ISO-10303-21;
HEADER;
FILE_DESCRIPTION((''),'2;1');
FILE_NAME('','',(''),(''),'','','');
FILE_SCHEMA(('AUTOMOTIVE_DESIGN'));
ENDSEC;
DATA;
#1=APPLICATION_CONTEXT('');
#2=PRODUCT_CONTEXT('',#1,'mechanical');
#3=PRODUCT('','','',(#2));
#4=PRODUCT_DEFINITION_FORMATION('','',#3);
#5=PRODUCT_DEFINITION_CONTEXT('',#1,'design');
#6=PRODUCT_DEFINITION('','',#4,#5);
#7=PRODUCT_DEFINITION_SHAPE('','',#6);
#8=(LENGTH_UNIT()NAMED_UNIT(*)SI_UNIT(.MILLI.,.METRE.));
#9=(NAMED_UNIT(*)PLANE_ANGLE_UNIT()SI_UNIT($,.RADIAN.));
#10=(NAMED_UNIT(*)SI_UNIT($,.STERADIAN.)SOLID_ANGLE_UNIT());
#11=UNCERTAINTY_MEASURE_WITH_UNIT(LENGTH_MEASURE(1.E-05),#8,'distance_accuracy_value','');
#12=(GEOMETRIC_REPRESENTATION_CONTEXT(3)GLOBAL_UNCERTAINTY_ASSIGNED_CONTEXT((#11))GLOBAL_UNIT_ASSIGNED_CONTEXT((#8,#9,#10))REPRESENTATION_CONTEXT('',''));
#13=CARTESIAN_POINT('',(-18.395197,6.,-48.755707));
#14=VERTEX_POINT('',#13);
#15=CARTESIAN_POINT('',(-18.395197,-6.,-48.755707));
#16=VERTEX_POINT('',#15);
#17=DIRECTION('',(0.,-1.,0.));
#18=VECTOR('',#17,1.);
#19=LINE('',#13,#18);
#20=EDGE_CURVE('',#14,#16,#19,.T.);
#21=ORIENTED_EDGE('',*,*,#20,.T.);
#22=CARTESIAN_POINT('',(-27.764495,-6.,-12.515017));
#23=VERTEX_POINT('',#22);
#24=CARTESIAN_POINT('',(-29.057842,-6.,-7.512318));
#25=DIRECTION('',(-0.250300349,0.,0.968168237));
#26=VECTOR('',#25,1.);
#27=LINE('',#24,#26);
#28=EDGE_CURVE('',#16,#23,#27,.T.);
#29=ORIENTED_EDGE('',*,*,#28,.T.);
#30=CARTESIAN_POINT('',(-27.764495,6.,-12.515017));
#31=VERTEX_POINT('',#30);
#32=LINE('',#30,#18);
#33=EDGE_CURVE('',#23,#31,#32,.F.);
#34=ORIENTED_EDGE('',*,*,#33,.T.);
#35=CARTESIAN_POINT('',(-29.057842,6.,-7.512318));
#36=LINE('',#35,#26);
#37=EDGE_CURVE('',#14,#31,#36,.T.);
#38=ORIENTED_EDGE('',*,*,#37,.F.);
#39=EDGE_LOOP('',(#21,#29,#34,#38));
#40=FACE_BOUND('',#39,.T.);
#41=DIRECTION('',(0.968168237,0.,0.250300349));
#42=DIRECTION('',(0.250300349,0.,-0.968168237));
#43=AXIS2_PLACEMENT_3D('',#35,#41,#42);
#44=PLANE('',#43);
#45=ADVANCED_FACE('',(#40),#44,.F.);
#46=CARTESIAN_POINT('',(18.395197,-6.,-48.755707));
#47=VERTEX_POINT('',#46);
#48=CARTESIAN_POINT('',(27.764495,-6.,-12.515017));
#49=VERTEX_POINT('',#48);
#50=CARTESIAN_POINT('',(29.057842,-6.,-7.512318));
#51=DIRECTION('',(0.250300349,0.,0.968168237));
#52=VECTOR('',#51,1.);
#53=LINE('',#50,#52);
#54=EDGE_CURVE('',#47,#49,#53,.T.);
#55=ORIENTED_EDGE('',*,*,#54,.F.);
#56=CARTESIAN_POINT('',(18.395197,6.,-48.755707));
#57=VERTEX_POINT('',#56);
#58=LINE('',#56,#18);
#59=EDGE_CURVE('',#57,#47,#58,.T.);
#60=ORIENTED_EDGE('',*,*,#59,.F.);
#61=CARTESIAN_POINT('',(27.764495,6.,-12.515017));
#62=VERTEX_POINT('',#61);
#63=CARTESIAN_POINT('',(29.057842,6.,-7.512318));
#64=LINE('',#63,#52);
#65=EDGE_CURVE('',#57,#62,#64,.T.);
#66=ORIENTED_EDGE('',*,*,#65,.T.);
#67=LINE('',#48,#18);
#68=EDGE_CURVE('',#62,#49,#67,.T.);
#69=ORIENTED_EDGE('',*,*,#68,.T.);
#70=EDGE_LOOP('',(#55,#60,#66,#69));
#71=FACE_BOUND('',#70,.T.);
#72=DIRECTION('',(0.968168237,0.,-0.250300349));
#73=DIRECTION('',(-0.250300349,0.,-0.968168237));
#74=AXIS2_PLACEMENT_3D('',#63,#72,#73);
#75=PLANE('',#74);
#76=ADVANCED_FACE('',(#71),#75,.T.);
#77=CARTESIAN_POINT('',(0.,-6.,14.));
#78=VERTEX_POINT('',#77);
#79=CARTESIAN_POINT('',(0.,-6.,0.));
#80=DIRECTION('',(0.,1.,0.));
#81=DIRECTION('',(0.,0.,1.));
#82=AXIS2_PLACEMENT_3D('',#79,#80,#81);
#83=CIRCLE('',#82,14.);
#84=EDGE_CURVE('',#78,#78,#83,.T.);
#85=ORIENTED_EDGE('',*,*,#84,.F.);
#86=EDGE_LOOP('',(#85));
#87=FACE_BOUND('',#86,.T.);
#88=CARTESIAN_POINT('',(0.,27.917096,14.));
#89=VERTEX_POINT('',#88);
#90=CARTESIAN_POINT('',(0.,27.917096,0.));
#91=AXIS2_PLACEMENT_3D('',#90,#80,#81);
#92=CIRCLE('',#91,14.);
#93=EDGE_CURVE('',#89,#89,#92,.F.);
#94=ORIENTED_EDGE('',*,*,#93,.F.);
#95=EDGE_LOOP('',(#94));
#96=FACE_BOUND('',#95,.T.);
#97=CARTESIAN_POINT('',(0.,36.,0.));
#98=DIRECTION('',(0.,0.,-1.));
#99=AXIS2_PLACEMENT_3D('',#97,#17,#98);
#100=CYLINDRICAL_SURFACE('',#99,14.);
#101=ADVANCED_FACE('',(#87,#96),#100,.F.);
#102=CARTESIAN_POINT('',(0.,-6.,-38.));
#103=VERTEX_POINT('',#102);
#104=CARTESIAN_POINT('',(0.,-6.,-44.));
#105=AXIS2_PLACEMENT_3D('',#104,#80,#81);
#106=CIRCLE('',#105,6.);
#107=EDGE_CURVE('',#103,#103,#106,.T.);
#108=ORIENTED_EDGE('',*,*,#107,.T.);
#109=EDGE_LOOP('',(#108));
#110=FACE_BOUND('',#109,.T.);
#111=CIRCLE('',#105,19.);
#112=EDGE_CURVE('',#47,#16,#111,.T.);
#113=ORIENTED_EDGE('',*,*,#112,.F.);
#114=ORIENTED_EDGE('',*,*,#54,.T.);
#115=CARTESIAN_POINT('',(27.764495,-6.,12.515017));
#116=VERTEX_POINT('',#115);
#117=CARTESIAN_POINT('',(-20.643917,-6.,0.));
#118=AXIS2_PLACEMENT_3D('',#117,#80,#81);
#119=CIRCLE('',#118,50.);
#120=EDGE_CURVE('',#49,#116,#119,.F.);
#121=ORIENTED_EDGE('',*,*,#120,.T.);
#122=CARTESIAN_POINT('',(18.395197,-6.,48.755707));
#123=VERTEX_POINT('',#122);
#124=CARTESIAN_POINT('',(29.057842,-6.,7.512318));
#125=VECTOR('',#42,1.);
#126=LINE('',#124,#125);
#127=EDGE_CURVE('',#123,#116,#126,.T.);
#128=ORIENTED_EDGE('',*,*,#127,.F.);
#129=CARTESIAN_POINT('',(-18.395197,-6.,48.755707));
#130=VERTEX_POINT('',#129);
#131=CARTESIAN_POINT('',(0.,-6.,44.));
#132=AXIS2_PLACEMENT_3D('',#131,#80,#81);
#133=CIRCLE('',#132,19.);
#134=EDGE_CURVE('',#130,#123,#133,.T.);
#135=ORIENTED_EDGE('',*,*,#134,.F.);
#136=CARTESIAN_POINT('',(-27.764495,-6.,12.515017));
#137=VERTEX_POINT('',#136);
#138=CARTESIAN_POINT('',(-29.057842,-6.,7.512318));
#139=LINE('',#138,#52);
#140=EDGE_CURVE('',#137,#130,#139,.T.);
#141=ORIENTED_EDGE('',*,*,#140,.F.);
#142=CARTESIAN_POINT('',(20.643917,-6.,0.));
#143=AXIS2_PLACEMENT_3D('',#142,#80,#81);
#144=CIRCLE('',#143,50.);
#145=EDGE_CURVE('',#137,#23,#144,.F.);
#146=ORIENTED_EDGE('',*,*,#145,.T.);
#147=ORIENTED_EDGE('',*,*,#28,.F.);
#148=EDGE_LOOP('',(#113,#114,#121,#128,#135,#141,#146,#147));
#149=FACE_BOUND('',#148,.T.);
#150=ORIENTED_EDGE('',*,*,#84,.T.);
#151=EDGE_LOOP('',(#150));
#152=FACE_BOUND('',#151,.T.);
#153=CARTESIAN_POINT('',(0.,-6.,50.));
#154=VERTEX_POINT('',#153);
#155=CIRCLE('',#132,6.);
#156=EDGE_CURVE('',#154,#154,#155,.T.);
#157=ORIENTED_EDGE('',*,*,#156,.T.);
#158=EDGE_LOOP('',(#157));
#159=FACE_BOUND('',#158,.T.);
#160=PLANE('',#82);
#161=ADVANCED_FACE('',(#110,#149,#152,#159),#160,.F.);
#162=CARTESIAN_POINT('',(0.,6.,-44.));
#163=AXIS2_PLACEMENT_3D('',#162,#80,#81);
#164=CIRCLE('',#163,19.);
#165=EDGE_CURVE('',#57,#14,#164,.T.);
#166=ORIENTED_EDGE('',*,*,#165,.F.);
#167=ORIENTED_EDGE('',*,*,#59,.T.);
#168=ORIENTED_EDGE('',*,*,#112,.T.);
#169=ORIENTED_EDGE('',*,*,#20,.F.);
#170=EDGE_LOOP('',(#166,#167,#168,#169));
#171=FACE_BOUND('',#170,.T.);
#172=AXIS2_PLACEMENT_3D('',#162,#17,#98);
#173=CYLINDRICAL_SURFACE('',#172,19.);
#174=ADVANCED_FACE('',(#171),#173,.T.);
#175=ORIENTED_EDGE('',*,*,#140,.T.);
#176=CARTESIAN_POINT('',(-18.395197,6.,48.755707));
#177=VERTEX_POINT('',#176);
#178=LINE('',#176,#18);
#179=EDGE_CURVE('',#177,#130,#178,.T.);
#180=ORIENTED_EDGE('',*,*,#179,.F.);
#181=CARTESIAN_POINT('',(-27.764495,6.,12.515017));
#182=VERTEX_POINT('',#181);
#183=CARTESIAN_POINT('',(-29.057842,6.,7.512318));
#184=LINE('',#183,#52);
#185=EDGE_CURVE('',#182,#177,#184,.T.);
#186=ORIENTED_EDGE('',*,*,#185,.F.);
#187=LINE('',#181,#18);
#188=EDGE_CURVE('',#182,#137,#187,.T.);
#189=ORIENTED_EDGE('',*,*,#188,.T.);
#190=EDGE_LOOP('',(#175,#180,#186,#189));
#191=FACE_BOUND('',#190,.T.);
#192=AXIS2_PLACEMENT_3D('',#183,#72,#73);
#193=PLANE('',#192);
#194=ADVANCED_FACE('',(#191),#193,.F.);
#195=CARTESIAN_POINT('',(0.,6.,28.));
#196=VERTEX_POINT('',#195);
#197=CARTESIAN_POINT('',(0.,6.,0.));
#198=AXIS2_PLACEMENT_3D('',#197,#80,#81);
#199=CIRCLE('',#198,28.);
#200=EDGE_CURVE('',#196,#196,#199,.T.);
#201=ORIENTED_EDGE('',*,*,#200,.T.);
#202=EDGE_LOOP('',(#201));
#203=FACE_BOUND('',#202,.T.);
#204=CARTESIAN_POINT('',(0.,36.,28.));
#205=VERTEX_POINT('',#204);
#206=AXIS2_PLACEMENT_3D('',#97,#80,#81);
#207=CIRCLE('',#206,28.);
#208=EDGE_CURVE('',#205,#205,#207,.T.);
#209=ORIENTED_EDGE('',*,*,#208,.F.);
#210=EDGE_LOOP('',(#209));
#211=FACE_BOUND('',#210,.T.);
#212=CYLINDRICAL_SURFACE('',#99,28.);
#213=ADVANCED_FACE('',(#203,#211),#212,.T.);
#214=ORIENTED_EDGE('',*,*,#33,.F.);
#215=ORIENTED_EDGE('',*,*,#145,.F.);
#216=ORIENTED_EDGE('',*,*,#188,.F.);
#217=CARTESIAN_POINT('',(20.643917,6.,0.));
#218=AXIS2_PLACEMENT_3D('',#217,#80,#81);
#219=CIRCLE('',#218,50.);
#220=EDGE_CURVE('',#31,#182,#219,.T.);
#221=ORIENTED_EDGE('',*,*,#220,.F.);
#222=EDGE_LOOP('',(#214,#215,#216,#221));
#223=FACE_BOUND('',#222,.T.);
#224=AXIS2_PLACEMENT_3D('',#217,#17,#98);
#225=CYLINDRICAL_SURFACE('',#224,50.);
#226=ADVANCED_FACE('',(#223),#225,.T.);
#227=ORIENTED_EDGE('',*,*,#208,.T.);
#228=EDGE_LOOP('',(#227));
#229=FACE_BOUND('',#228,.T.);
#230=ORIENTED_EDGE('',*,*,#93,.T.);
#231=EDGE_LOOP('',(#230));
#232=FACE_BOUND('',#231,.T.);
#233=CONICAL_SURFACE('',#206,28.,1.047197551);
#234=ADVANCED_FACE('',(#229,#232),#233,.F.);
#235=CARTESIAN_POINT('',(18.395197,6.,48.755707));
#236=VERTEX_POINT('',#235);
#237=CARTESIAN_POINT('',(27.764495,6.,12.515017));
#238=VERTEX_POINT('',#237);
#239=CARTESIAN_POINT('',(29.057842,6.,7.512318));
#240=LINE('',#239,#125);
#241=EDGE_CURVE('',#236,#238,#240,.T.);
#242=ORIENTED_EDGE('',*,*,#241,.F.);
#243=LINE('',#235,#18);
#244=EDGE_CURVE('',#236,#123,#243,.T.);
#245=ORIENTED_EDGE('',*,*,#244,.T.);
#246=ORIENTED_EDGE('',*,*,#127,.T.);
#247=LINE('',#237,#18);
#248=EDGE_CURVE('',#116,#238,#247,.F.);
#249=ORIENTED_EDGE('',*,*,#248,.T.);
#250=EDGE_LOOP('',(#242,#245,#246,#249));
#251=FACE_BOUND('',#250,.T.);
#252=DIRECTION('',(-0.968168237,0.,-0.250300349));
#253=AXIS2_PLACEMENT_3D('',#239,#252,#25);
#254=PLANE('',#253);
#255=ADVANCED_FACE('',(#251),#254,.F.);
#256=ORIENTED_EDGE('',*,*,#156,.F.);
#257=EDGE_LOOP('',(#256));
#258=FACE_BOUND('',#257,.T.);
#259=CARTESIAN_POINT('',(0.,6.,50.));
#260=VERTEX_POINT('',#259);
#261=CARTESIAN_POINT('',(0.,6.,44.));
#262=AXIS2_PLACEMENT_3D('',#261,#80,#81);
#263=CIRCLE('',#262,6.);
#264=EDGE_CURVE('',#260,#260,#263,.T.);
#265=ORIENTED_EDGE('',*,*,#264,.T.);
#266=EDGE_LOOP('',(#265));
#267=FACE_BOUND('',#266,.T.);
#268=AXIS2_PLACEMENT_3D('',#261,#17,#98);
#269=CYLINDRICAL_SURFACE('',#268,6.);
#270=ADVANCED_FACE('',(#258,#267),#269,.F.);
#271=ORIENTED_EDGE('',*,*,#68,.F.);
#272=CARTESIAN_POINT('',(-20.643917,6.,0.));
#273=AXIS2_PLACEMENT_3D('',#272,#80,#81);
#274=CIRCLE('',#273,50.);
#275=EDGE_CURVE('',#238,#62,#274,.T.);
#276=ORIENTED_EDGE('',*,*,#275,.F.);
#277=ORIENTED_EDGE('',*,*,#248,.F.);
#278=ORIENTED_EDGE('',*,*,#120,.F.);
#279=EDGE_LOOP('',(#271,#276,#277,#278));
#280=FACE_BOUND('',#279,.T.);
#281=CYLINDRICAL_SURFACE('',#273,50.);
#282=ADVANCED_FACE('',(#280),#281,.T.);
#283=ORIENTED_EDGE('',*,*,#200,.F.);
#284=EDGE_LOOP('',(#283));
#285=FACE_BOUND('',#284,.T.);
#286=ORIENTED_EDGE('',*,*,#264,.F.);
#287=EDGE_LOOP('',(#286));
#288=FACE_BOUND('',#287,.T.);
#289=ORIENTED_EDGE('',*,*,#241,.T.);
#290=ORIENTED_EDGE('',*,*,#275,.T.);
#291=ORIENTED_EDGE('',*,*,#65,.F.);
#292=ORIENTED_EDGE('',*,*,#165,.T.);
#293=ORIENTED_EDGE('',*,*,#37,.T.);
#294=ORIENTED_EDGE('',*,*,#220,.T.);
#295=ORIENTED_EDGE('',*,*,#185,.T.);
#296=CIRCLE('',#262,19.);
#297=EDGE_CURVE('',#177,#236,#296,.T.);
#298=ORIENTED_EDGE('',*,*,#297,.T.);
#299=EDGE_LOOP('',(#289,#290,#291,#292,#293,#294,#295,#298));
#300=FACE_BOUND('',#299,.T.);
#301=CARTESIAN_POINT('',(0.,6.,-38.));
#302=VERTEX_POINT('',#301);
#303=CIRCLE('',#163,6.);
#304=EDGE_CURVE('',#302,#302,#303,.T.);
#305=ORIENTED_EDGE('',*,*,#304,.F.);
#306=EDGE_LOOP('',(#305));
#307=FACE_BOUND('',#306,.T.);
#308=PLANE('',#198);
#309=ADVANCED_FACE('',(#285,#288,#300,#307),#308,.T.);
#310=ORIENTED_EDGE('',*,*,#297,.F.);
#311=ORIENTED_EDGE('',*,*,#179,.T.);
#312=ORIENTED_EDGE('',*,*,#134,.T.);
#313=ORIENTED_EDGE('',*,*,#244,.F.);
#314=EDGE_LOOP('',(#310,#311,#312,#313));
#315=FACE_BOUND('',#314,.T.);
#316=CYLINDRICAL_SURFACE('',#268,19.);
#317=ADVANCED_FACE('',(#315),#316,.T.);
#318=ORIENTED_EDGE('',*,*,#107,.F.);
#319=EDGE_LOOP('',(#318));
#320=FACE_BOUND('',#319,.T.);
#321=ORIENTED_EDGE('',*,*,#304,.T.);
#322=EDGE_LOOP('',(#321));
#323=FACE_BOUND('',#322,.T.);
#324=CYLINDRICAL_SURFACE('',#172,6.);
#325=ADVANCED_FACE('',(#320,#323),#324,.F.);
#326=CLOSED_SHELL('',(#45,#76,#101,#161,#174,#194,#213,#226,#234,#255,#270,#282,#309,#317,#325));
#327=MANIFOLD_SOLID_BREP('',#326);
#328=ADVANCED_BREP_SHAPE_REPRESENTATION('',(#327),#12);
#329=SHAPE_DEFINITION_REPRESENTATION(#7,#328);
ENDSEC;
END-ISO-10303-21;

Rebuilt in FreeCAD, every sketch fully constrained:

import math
import FreeCAD as App
import Part
import Sketcher
from FreeCAD import Vector
Q = App.Units.Quantity


def edges_at(feature, points):
    """Names of the edges that pass closest to the given points."""
    edges = feature.Shape.Edges
    near = lambda p: min(range(len(edges)), key=lambda i: edges[i].distToShape(Part.Vertex(*p))[0])
    return sorted({f"Edge{near(p) + 1}" for p in points})


def add_polygon(sketch, points):
    """Adds a closed chain of lines whose ends are joined by coincident constraints."""
    first, n = sketch.GeometryCount, len(points)
    for a, b in zip(points, points[1:] + points[:1]):
        sketch.addGeometry(Part.LineSegment(App.Vector(*a, 0), App.Vector(*b, 0)), False)
    for i in range(n):
        sketch.addConstraint(Sketcher.Constraint("Coincident", first + i, 2, first + (i + 1) % n, 1))

doc = App.newDocument("Part")
body = doc.addObject("PartDesign::Body", "Body")

# Sketch on XZ plane
sketch1 = body.newObject("Sketcher::SketchObject", "Sketch")
sketch1.AttachmentSupport = (doc.getObject("XZ_Plane"), [""])
sketch1.MapMode = "FlatFace"
sketch1.addGeometry([
    Part.ArcOfCircle(Part.Circle(Vector(0, -44, 0), Vector(0, 0, 1), 19), math.radians(-165.504714), math.radians(-14.495286)),  # 0
    Part.LineSegment(Vector(-18.395197, -48.755707, 0), Vector(-31, 0, 0)),  # 1
    Part.LineSegment(Vector(-31, 0, 0), Vector(-18.395197, 48.755707, 0)),  # 2
    Part.ArcOfCircle(Part.Circle(Vector(0, 44, 0), Vector(0, 0, 1), 19), math.radians(14.495286), math.radians(165.504714)),  # 3
    Part.LineSegment(Vector(18.395197, 48.755707, 0), Vector(31, 0, 0)),  # 4
    Part.LineSegment(Vector(31, 0, 0), Vector(18.395197, -48.755707, 0)),  # 5
    Part.Circle(Vector(0, 44, 0), Vector(0, 0, 1), 6),  # 6
    Part.Circle(Vector(0, -44, 0), Vector(0, 0, 1), 6),  # 7
], False)
sketch1.addConstraint([
    Sketcher.Constraint("Tangent", 0, 1, 1, 1),
    Sketcher.Constraint("Coincident", 1, 2, 2, 1),
    Sketcher.Constraint("Tangent", 2, 2, 3, 2),
    Sketcher.Constraint("Tangent", 3, 1, 4, 1),
    Sketcher.Constraint("Coincident", 4, 2, 5, 1),
    Sketcher.Constraint("Tangent", 5, 2, 0, 2),
    Sketcher.Constraint("Coincident", 6, 3, 3, 3),
    Sketcher.Constraint("Coincident", 7, 3, 0, 3),
    Sketcher.Constraint("Equal", 0, 3),
    Sketcher.Constraint("Equal", 6, 7),
    Sketcher.Constraint("Symmetric", 0, 3, 3, 3, -1, 1),
    Sketcher.Constraint("Symmetric", 1, 2, 4, 2, -1, 1),
    Sketcher.Constraint("Symmetric", 2, 2, 3, 1, -2),
    Sketcher.Constraint("Diameter", 6, Q("12 mm")),
    Sketcher.Constraint("Radius", 0, Q("19 mm")),
    Sketcher.Constraint("DistanceY", 0, 3, -1, 1, Q("44 mm")),
    Sketcher.Constraint("DistanceX", 1, 2, -1, 1, Q("31 mm")),
])
pad1 = body.newObject("PartDesign::Pad", "Pad")
pad1.Profile = sketch1
pad1.Length = 12
pad1.Midplane = True
doc.recompute()

fillet = body.newObject("PartDesign::Fillet", "Fillet")
fillet.Base = (pad1, edges_at(pad1, [(-31, 0, 0), (31, 0, 0)]))
fillet.Radius = 50

# Sketch on XZ plane
sketch2 = body.newObject("Sketcher::SketchObject", "Sketch001")
sketch2.AttachmentSupport = (doc.getObject("XZ_Plane"), [""])
sketch2.MapMode = "FlatFace"
sketch2.AttachmentOffset = App.Placement(Vector(0, 0, -6), App.Rotation())
sketch2.addGeometry([
    Part.Circle(Vector(0, 0, 0), Vector(0, 0, 1), 28),
    Part.Circle(Vector(0, 0, 0), Vector(0, 0, 1), 14),
], False)
sketch2.addConstraint([
    Sketcher.Constraint("Coincident", 0, 3, -1, 1),
    Sketcher.Constraint("Coincident", 1, 3, -1, 1),
    Sketcher.Constraint("Diameter", 0, Q("56 mm")),
    Sketcher.Constraint("Diameter", 1, Q("28 mm")),
])
pad2 = body.newObject("PartDesign::Pad", "Pad001")
pad2.Profile = sketch2
pad2.Length = 30
pad2.Reversed = True

# Sketch on XZ plane
sketch3 = body.newObject("Sketcher::SketchObject", "Sketch002")
sketch3.AttachmentSupport = (doc.getObject("XZ_Plane"), [""])
sketch3.MapMode = "FlatFace"
sketch3.AttachmentOffset = App.Placement(Vector(0, 0, -6), App.Rotation())
sketch3.addGeometry(Part.Circle(Vector(0, 0, 0), Vector(0, 0, 1), 14), False)
sketch3.addConstraint([
    Sketcher.Constraint("Coincident", 0, 3, -1, 1),
    Sketcher.Constraint("Diameter", 0, Q("28 mm")),
])
pocket1 = body.newObject("PartDesign::Pocket", "Pocket")
pocket1.Profile = sketch3
pocket1.Type = "ThroughAll"
pocket1.Reversed = True

# Sketch on YZ plane
sketch4 = body.newObject("Sketcher::SketchObject", "Sketch003")
sketch4.AttachmentSupport = (doc.getObject("YZ_Plane"), [""])
sketch4.MapMode = "FlatFace"
add_polygon(sketch4, [(36, 0), (36, 28), (19.834192, 0)])  # lines 0-2
sketch4.addConstraint([
    Sketcher.Constraint("Vertical", 0),
    Sketcher.Constraint("Horizontal", 2),
    Sketcher.Constraint("PointOnObject", 1, 2, -1),
    Sketcher.Constraint("DistanceY", 0, 1, 0, 2, Q("28 mm")),
    Sketcher.Constraint("Angle", 1, Q("-120 deg")),
    Sketcher.Constraint("DistanceX", -1, 1, 0, 2, Q("36 mm")),
])
groove = body.newObject("PartDesign::Groove", "Groove")
groove.Profile = sketch4
groove.ReferenceAxis = (sketch4, ["H_Axis"])
groove.Angle = 360

doc.recompute()
